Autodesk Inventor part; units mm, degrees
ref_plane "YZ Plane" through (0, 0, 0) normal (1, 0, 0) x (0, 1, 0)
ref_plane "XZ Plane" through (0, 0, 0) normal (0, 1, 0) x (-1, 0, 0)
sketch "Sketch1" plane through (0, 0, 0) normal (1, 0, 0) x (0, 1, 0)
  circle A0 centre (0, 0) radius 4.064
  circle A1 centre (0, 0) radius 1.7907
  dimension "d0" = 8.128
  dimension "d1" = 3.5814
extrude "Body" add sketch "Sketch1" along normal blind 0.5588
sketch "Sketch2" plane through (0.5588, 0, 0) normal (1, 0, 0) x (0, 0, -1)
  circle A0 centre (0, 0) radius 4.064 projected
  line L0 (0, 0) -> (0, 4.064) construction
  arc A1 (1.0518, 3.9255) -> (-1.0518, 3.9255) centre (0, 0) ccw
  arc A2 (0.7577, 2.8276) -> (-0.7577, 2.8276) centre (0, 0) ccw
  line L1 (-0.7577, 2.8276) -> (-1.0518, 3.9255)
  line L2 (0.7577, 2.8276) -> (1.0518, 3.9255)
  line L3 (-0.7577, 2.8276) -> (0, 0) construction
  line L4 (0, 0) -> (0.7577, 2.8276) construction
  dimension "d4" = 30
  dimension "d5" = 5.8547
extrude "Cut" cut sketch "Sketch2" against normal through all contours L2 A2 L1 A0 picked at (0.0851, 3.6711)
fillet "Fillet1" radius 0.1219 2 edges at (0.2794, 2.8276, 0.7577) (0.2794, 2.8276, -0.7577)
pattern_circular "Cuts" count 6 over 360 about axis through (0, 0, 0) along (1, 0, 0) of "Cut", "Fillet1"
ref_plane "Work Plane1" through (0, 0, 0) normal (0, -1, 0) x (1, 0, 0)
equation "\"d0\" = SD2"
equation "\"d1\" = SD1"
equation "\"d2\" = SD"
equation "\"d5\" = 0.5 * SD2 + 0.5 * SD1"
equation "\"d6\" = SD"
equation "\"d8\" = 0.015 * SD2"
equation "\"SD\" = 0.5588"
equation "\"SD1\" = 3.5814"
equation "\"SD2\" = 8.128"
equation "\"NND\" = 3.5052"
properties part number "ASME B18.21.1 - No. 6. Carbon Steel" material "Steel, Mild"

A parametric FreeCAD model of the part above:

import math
import FreeCAD as App
import Part
import Sketcher

V = App.Vector
Q = App.Units.Quantity


def edges_at(feature, points):
    """Names of the edges that pass closest to the given points."""
    edges = feature.Shape.Edges
    near = lambda p: min(range(len(edges)), key=lambda i: edges[i].distToShape(Part.Vertex(*p))[0])
    return sorted({f"Edge{near(p) + 1}" for p in points})

doc = App.newDocument("Part")
body = doc.addObject("PartDesign::Body", "Body")

# Sketch on YZ plane
sketch1 = body.newObject("Sketcher::SketchObject", "Sketch")
sketch1.AttachmentSupport = (doc.getObject("YZ_Plane"), [""])
sketch1.MapMode = "FlatFace"
sketch1.addGeometry(Part.Circle(V(0, 0, 0), V(0, 0, 1), 4.1), False)
sketch1.addGeometry(Part.Circle(V(0, 0, 0), V(0, 0, 1), 1.8), False)
sketch1.addConstraint(Sketcher.Constraint("Coincident", 0, 3, -1, 1))
sketch1.addConstraint(Sketcher.Constraint("Coincident", 1, 3, -1, 1))
sketch1.addConstraint(Sketcher.Constraint("Diameter", 0, Q("0.32 in")))
sketch1.addConstraint(Sketcher.Constraint("Diameter", 1, Q("0.141 in")))
pad1 = body.newObject("PartDesign::Pad", "Pad")
pad1.Profile = sketch1
pad1.Length = Q("0.022 in")

# Sketch on YZ plane
sketch2 = body.newObject("Sketcher::SketchObject", "Sketch001")
sketch2.AttachmentSupport = (doc.getObject("YZ_Plane"), [""])
sketch2.MapMode = "FlatFace"
sketch2.AttachmentOffset = App.Placement(V(0, 0, 0.022 * 25.4), App.Rotation())
sketch2.addGeometry(Part.LineSegment(V(2.8, -0.8, 0), V(3.9, -1.1, 0)), False)
sketch2.addGeometry(Part.ArcOfCircle(Part.Circle(V(0, 0, 0), V(0, 0, 1), 4.1), math.radians(-15), math.radians(15)), False)
sketch2.addGeometry(Part.LineSegment(V(3.9, 1.1, 0), V(2.8, 0.8, 0)), False)
sketch2.addGeometry(Part.ArcOfCircle(Part.Circle(V(0, 0, 0), V(0, 0, 1), 2.9), math.radians(-15), math.radians(15)), False)
sketch2.addConstraint(Sketcher.Constraint("Coincident", 0, 2, 1, 1))
sketch2.addConstraint(Sketcher.Constraint("Coincident", 1, 2, 2, 1))
sketch2.addConstraint(Sketcher.Constraint("Coincident", 2, 2, 3, 2))
sketch2.addConstraint(Sketcher.Constraint("Coincident", 3, 1, 0, 1))
sketch2.addConstraint(Sketcher.Constraint("Coincident", 1, 3, -1, 1))
sketch2.addConstraint(Sketcher.Constraint("Coincident", 3, 3, -1, 1))
sketch2.addConstraint(Sketcher.Constraint("Vertical", 0, 2, 1, 2))
sketch2.addConstraint(Sketcher.Constraint("Vertical", 2, 2, 3, 1))
sketch2.addConstraint(Sketcher.Constraint("Radius", 1, Q("0.16 in")))
sketch2.addConstraint(Sketcher.Constraint("Radius", 3, Q("2.9274 mm")))
sketch2.addConstraint(Sketcher.Constraint("DistanceY", 0, 2, -1, 1, Q("0.0414 in")))
sketch2.addConstraint(Sketcher.Constraint("DistanceX", -1, 1, 2, 2, Q("2.8276 mm")))
pocket1 = body.newObject("PartDesign::Pocket", "Pocket")
pocket1.Profile = sketch2
pocket1.Type = "ThroughAll"
doc.recompute()

fillet = body.newObject("PartDesign::Fillet", "Fillet")
fillet.Base = (pocket1, edges_at(pocket1, [(0.279, 2.828, 0.758), (0.279, 2.828, -0.758)]))
fillet.Radius = Q("0.0047992 in")
doc.recompute()

polarpattern = body.newObject("PartDesign::PolarPattern", "PolarPattern")
polarpattern.Originals = [pocket1, fillet]
polarpattern.Axis = (doc.getObject("X_Axis"), [""])
polarpattern.Angle = 360
polarpattern.Occurrences = 6
body.Tip = polarpattern

doc.recompute()
